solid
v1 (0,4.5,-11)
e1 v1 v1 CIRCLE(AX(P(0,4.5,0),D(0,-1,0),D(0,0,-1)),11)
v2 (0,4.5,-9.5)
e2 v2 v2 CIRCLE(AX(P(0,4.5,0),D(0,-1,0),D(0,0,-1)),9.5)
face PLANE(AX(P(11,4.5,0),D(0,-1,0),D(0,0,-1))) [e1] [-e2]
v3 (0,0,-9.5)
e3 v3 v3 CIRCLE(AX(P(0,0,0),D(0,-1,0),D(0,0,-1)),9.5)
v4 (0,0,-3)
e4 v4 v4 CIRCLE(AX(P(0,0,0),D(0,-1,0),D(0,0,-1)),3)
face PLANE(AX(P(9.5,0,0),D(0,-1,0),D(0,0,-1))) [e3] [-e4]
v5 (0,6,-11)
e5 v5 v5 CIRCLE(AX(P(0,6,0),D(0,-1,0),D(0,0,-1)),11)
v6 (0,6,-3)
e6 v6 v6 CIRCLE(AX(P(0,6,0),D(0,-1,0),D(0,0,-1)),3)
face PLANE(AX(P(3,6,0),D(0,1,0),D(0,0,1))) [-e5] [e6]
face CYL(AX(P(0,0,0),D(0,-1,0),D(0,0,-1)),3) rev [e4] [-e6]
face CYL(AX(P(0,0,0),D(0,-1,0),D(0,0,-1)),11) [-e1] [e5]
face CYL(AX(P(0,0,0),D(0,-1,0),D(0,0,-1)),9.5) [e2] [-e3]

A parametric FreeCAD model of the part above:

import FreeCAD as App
import Part
import Sketcher

doc = App.newDocument("Part")
params = doc.addObject("Spreadsheet::Sheet", "Params")
for row, (alias, value) in enumerate([
    ("sketch1_width", "8 mm"),
    ("sketch1_height", "6 mm"),
    ("sketch1_width2", "6.5 mm"),
    ("revolution_angle", "360 deg"),
], start=1):
    params.set(f"A{row}", alias)
    params.set(f"B{row}", "=" + value)
    params.setAlias(f"B{row}", alias)

body = doc.addObject("PartDesign::Body", "Body")

# Sketch on XY plane
sketch1 = body.newObject("Sketcher::SketchObject", "Sketch")
sketch1.AttachmentSupport = (doc.getObject("XY_Plane"), [""])
sketch1.MapMode = "FlatFace"
sketch1.addGeometry(Part.LineSegment(App.Vector(3, 6, 0), App.Vector(3, 0, 0)), False)
sketch1.addGeometry(Part.LineSegment(App.Vector(3, 0, 0), App.Vector(9.5, 0, 0)), False)
sketch1.addGeometry(Part.LineSegment(App.Vector(9.5, 0, 0), App.Vector(9.5, 4.5, 0)), False)
sketch1.addGeometry(Part.LineSegment(App.Vector(9.5, 4.5, 0), App.Vector(11, 4.5, 0)), False)
sketch1.addGeometry(Part.LineSegment(App.Vector(11, 4.5, 0), App.Vector(11, 6, 0)), False)
sketch1.addGeometry(Part.LineSegment(App.Vector(11, 6, 0), App.Vector(3, 6, 0)), False)
sketch1.addConstraint(Sketcher.Constraint("Coincident", 0, 2, 1, 1))
sketch1.addConstraint(Sketcher.Constraint("Coincident", 1, 2, 2, 1))
sketch1.addConstraint(Sketcher.Constraint("Coincident", 2, 2, 3, 1))
sketch1.addConstraint(Sketcher.Constraint("Coincident", 3, 2, 4, 1))
sketch1.addConstraint(Sketcher.Constraint("Coincident", 4, 2, 5, 1))
sketch1.addConstraint(Sketcher.Constraint("Coincident", 5, 2, 0, 1))
sketch1.addConstraint(Sketcher.Constraint("Vertical", 0))
sketch1.addConstraint(Sketcher.Constraint("Horizontal", 1))
sketch1.addConstraint(Sketcher.Constraint("Vertical", 2))
sketch1.addConstraint(Sketcher.Constraint("Horizontal", 3))
sketch1.addConstraint(Sketcher.Constraint("Vertical", 4))
sketch1.addConstraint(Sketcher.Constraint("Horizontal", 5))
sketch1.addConstraint(Sketcher.Constraint("PointOnObject", 0, 2, -1))
sketch1.addConstraint(Sketcher.Constraint("Equal", 3, 4))
sketch1.addConstraint(Sketcher.Constraint("DistanceX", 5, 2, 5, 1, 8.0))
sketch1.addConstraint(Sketcher.Constraint("DistanceY", 0, 2, 0, 1, 6.0))
sketch1.addConstraint(Sketcher.Constraint("DistanceX", 1, 1, 1, 2, 6.5))
sketch1.addConstraint(Sketcher.Constraint("DistanceX", -1, 1, 0, 2, 3.0))
sketch1.setExpression("Constraints[14]", "Params.sketch1_width")
sketch1.setExpression("Constraints[15]", "Params.sketch1_height")
sketch1.setExpression("Constraints[16]", "Params.sketch1_width2")
revolution = body.newObject("PartDesign::Revolution", "Revolution")
revolution.Profile = sketch1
revolution.ReferenceAxis = (sketch1, ["V_Axis"])
revolution.setExpression("Angle", "Params.revolution_angle")

doc.recompute()
